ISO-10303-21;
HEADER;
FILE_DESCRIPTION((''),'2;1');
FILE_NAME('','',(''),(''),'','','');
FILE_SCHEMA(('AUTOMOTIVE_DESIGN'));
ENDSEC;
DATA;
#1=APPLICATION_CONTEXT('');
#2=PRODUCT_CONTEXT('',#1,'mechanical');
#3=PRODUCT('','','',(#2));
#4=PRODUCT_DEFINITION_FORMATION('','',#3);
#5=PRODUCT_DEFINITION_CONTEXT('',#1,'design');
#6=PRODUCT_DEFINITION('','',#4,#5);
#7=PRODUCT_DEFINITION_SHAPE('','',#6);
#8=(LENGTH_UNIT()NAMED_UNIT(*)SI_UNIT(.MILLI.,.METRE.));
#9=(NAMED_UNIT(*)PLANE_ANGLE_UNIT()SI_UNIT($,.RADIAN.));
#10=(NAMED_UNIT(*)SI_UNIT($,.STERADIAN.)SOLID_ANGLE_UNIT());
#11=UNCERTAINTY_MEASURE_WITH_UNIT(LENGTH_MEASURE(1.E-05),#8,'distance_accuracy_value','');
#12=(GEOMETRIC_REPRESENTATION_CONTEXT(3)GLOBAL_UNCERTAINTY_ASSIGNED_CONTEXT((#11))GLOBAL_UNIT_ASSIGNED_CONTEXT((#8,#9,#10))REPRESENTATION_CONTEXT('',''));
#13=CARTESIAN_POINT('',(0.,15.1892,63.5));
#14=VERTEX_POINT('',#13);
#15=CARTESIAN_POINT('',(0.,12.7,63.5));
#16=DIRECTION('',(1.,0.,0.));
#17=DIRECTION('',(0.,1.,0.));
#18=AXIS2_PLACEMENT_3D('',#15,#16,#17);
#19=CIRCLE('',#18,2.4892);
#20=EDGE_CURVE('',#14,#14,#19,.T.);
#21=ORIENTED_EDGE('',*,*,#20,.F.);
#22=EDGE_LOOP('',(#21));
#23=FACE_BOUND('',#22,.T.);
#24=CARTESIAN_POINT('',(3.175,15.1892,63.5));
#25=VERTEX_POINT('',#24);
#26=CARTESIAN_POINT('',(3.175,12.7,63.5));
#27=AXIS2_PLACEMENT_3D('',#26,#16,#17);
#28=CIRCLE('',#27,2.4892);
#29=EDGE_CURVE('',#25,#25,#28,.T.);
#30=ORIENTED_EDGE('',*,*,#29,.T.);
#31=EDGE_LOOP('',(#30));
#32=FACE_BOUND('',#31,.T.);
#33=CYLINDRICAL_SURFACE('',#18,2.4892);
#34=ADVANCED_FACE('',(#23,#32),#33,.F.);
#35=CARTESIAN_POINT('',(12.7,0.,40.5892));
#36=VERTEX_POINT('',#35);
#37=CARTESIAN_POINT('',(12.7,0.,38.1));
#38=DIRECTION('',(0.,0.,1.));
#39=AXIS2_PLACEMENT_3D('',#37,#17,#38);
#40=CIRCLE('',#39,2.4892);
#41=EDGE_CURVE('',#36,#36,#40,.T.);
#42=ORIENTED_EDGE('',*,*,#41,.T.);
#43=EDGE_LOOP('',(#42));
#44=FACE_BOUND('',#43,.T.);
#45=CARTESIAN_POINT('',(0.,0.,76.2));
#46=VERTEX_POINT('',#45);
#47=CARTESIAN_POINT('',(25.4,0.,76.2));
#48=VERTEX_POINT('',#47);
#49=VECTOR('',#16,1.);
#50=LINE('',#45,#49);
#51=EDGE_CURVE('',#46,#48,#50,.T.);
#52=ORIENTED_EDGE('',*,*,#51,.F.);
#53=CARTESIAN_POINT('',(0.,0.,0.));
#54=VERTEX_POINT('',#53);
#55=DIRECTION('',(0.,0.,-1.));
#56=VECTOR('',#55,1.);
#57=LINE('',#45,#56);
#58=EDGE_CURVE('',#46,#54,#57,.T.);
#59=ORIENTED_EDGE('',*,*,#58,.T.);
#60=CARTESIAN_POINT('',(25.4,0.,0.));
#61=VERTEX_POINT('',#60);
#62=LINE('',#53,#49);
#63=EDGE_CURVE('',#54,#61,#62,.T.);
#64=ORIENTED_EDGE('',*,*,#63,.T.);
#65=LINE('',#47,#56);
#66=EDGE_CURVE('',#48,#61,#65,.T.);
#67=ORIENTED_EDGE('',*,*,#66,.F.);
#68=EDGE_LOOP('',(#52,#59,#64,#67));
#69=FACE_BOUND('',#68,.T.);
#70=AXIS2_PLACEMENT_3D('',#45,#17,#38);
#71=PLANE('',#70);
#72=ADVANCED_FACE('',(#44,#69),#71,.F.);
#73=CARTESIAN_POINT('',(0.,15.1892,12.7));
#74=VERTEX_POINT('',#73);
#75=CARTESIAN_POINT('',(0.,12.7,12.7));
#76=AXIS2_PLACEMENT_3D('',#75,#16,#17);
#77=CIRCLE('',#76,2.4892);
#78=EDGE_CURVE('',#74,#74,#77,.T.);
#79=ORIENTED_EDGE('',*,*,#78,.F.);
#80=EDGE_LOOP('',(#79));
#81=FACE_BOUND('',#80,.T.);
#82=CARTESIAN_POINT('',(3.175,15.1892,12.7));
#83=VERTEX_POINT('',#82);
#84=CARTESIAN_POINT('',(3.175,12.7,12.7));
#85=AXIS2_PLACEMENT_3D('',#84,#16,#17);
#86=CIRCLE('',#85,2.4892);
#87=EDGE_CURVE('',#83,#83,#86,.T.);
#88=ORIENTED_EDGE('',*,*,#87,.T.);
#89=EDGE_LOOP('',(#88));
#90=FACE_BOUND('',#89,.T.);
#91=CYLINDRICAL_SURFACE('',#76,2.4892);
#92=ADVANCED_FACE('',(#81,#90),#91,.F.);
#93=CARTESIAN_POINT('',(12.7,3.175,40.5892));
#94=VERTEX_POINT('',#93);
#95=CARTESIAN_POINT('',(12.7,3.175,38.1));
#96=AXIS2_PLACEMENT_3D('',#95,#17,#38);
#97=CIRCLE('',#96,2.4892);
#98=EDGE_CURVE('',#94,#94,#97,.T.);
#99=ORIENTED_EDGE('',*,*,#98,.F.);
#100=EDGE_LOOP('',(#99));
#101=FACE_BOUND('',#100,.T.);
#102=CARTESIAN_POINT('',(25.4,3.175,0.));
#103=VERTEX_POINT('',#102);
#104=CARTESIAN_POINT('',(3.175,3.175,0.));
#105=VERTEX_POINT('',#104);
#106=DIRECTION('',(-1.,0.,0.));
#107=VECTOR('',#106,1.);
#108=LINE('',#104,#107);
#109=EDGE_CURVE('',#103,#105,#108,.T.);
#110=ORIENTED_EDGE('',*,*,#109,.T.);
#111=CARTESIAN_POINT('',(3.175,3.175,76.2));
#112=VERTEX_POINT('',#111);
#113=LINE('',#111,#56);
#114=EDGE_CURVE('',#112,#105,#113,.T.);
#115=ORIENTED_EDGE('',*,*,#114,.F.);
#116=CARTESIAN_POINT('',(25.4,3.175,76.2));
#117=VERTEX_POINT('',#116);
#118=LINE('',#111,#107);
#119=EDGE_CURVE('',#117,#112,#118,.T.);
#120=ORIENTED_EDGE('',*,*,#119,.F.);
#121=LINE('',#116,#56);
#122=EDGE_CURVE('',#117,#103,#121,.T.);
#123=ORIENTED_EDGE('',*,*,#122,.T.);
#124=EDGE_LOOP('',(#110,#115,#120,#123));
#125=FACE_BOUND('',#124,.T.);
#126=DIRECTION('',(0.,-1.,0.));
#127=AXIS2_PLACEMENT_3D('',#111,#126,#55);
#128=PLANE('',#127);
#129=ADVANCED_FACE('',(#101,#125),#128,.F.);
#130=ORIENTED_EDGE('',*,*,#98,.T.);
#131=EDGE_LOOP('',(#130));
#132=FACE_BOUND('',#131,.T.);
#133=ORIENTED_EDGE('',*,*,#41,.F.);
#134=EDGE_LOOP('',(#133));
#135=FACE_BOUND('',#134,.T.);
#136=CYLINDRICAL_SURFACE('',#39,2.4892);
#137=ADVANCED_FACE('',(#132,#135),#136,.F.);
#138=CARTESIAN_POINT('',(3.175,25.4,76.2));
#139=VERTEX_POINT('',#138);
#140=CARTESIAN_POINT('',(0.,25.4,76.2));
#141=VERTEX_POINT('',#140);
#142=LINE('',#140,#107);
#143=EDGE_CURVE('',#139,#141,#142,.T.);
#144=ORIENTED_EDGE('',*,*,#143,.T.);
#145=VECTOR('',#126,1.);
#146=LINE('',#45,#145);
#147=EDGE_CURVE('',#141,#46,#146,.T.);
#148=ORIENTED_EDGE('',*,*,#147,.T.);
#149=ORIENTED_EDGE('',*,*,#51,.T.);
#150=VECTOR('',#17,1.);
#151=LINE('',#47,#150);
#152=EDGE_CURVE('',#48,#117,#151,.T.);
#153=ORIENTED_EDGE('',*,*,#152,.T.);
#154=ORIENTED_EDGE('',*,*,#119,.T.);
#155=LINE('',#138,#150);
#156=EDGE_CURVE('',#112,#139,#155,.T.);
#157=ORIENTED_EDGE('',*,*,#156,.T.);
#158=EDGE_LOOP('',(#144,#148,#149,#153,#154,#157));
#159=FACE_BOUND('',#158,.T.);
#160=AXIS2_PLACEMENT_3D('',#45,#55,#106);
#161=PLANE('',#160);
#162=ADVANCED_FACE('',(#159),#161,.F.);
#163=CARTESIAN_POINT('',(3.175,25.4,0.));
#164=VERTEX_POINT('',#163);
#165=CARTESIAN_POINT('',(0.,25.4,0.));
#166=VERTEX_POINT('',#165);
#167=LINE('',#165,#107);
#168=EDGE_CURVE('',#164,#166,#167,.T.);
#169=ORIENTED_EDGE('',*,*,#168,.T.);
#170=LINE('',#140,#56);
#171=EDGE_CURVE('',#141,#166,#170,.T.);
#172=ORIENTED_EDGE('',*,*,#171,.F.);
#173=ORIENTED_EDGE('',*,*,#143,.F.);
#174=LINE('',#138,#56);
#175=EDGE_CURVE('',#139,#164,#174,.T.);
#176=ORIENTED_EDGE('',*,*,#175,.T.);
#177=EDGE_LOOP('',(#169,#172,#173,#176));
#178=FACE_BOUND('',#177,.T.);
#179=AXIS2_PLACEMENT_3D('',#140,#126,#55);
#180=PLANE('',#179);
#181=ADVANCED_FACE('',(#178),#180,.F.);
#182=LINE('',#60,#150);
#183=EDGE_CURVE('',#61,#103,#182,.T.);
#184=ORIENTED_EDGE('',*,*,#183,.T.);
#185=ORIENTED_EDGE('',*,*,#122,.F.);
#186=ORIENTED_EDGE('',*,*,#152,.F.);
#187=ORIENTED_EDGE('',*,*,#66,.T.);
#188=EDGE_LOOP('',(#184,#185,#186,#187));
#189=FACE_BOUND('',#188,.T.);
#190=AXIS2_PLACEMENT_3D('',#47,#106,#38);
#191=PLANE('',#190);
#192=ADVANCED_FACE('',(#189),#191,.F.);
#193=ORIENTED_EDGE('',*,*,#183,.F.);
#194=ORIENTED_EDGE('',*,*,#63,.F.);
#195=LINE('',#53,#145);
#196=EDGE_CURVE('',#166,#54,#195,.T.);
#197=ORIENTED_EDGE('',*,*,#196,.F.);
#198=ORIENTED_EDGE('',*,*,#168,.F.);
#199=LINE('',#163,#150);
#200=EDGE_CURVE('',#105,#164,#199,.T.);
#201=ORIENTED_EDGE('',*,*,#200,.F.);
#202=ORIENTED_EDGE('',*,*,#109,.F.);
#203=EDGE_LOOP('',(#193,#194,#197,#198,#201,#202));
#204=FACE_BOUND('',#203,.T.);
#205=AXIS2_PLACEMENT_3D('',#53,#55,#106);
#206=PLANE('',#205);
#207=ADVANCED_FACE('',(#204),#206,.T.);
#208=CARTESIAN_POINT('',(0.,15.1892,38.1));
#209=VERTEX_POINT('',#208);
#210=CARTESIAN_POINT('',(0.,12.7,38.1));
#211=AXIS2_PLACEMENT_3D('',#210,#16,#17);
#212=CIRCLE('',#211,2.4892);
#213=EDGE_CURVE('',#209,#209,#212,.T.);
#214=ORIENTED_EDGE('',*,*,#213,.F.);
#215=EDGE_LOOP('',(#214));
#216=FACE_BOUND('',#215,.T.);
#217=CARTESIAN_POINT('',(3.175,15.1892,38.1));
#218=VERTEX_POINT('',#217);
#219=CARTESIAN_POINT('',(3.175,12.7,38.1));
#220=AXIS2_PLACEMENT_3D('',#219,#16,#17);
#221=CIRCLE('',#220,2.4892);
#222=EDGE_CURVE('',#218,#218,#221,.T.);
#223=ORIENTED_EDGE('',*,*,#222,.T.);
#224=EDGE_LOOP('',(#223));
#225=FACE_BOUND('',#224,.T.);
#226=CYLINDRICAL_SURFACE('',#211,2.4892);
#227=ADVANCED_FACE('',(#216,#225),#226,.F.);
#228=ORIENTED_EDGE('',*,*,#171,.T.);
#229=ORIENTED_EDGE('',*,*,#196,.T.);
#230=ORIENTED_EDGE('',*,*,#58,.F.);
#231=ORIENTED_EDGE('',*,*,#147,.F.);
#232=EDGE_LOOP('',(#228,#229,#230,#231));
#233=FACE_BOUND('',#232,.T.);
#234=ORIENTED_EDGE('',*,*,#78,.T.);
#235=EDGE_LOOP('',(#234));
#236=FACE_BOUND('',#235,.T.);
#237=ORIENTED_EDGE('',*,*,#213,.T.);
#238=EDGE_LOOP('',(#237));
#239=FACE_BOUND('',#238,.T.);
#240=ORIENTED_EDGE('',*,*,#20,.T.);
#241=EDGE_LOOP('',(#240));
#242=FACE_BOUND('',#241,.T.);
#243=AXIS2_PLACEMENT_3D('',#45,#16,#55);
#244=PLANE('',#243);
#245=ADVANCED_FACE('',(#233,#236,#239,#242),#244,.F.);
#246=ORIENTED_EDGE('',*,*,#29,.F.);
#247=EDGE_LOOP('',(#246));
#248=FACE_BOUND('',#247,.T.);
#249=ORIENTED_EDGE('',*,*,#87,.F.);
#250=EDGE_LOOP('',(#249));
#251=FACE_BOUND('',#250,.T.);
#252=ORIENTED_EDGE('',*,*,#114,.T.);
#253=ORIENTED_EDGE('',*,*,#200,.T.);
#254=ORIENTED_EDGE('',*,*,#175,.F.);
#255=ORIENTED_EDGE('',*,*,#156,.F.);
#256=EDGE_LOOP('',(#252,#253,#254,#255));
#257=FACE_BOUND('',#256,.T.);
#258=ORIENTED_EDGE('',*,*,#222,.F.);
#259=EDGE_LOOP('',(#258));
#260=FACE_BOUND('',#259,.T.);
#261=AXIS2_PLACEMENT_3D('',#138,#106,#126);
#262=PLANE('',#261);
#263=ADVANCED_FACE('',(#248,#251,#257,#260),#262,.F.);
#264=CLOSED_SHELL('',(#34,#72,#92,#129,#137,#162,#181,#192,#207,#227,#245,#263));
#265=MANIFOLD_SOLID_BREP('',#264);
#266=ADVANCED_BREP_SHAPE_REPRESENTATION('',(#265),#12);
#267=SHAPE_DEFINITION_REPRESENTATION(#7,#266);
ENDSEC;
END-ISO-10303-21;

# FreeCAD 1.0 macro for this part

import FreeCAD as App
import Part
import Sketcher
from FreeCAD import Vector
Q = App.Units.Quantity


def add_polygon(sketch, points):
    """Adds a closed chain of lines whose ends are joined by coincident constraints."""
    first, n = sketch.GeometryCount, len(points)
    for a, b in zip(points, points[1:] + points[:1]):
        sketch.addGeometry(Part.LineSegment(App.Vector(*a, 0), App.Vector(*b, 0)), False)
    for i in range(n):
        sketch.addConstraint(Sketcher.Constraint("Coincident", first + i, 2, first + (i + 1) % n, 1))

doc = App.newDocument("Part")
body = doc.addObject("PartDesign::Body", "Body")

sketch1 = body.newObject("Sketcher::SketchObject", "Sketch")
sketch1.AttachmentSupport = (doc.getObject("XY_Plane"), [""])
sketch1.MapMode = "FlatFace"
add_polygon(sketch1, [(3.2, 3.2), (3.2, 25.4), (0, 25.4), (0, 0), (25.4, 0), (25.4, 3.2)])
sketch1.addConstraint(Sketcher.Constraint("Vertical", 0))
sketch1.addConstraint(Sketcher.Constraint("Horizontal", 1))
sketch1.addConstraint(Sketcher.Constraint("Vertical", 2))
sketch1.addConstraint(Sketcher.Constraint("Horizontal", 3))
sketch1.addConstraint(Sketcher.Constraint("Vertical", 4))
sketch1.addConstraint(Sketcher.Constraint("Horizontal", 5))
sketch1.addConstraint(Sketcher.Constraint("Coincident", 2, 2, -1, 1))
sketch1.addConstraint(Sketcher.Constraint("Equal", 5, 0))
sketch1.addConstraint(Sketcher.Constraint("Equal", 3, 2))
sketch1.addConstraint(Sketcher.Constraint("DistanceX", 3, 1, 3, 2, Q("1 in")))
sketch1.addConstraint(Sketcher.Constraint("DistanceX", 1, 2, 1, 1, Q("0.125 in")))
pad1 = body.newObject("PartDesign::Pad", "Pad")
pad1.Profile = sketch1
pad1.Length = Q("3 in")

sketch2 = body.newObject("Sketcher::SketchObject", "Sketch001")
sketch2.AttachmentSupport = (doc.getObject("YZ_Plane"), [""])
sketch2.MapMode = "FlatFace"
sketch2.AttachmentOffset = App.Placement(Vector(0, 0, 0.125 * 25.4), App.Rotation())
sketch2.addGeometry(Part.Circle(Vector(12.7, 63.5, 0), Vector(0, 0, 1), 2.5), False)
sketch2.addGeometry(Part.Circle(Vector(12.7, 38.1, 0), Vector(0, 0, 1), 2.5), False)
sketch2.addGeometry(Part.Circle(Vector(12.7, 12.7, 0), Vector(0, 0, 1), 2.5), False)
sketch2.addConstraint(Sketcher.Constraint("Equal", 0, 1))
sketch2.addConstraint(Sketcher.Constraint("Equal", 1, 2))
sketch2.addConstraint(Sketcher.Constraint("Vertical", 0, 3, 1, 3))
sketch2.addConstraint(Sketcher.Constraint("Vertical", 1, 3, 2, 3))
sketch2.addConstraint(Sketcher.Constraint("Diameter", 0, Q("0.196 in")))
sketch2.addConstraint(Sketcher.Constraint("DistanceY", 1, 3, 0, 3, Q("1 in")))
sketch2.addConstraint(Sketcher.Constraint("DistanceY", 2, 3, 1, 3, Q("1 in")))
sketch2.addConstraint(Sketcher.Constraint("DistanceX", -1, 1, 0, 3, Q("0.5 in")))
sketch2.addConstraint(Sketcher.Constraint("DistanceY", -1, 1, 0, 3, Q("2.5 in")))
pocket1 = body.newObject("PartDesign::Pocket", "Pocket")
pocket1.Profile = sketch2
pocket1.Type = "ThroughAll"

sketch3 = body.newObject("Sketcher::SketchObject", "Sketch002")
sketch3.AttachmentSupport = (doc.getObject("XZ_Plane"), [""])
sketch3.MapMode = "FlatFace"
sketch3.AttachmentOffset = App.Placement(Vector(0, 0, -0.125 * 25.4), App.Rotation())
sketch3.addGeometry(Part.Circle(Vector(12.7, 38.1, 0), Vector(0, 0, 1), 2.5), False)
sketch3.addConstraint(Sketcher.Constraint("Diameter", 0, Q("0.196 in")))
sketch3.addConstraint(Sketcher.Constraint("DistanceX", -1, 1, 0, 3, Q("0.5 in")))
sketch3.addConstraint(Sketcher.Constraint("DistanceY", -1, 1, 0, 3, Q("1.5 in")))
pocket2 = body.newObject("PartDesign::Pocket", "Pocket001")
pocket2.Profile = sketch3
pocket2.Type = "ThroughAll"
pocket2.Reversed = True

doc.recompute()
